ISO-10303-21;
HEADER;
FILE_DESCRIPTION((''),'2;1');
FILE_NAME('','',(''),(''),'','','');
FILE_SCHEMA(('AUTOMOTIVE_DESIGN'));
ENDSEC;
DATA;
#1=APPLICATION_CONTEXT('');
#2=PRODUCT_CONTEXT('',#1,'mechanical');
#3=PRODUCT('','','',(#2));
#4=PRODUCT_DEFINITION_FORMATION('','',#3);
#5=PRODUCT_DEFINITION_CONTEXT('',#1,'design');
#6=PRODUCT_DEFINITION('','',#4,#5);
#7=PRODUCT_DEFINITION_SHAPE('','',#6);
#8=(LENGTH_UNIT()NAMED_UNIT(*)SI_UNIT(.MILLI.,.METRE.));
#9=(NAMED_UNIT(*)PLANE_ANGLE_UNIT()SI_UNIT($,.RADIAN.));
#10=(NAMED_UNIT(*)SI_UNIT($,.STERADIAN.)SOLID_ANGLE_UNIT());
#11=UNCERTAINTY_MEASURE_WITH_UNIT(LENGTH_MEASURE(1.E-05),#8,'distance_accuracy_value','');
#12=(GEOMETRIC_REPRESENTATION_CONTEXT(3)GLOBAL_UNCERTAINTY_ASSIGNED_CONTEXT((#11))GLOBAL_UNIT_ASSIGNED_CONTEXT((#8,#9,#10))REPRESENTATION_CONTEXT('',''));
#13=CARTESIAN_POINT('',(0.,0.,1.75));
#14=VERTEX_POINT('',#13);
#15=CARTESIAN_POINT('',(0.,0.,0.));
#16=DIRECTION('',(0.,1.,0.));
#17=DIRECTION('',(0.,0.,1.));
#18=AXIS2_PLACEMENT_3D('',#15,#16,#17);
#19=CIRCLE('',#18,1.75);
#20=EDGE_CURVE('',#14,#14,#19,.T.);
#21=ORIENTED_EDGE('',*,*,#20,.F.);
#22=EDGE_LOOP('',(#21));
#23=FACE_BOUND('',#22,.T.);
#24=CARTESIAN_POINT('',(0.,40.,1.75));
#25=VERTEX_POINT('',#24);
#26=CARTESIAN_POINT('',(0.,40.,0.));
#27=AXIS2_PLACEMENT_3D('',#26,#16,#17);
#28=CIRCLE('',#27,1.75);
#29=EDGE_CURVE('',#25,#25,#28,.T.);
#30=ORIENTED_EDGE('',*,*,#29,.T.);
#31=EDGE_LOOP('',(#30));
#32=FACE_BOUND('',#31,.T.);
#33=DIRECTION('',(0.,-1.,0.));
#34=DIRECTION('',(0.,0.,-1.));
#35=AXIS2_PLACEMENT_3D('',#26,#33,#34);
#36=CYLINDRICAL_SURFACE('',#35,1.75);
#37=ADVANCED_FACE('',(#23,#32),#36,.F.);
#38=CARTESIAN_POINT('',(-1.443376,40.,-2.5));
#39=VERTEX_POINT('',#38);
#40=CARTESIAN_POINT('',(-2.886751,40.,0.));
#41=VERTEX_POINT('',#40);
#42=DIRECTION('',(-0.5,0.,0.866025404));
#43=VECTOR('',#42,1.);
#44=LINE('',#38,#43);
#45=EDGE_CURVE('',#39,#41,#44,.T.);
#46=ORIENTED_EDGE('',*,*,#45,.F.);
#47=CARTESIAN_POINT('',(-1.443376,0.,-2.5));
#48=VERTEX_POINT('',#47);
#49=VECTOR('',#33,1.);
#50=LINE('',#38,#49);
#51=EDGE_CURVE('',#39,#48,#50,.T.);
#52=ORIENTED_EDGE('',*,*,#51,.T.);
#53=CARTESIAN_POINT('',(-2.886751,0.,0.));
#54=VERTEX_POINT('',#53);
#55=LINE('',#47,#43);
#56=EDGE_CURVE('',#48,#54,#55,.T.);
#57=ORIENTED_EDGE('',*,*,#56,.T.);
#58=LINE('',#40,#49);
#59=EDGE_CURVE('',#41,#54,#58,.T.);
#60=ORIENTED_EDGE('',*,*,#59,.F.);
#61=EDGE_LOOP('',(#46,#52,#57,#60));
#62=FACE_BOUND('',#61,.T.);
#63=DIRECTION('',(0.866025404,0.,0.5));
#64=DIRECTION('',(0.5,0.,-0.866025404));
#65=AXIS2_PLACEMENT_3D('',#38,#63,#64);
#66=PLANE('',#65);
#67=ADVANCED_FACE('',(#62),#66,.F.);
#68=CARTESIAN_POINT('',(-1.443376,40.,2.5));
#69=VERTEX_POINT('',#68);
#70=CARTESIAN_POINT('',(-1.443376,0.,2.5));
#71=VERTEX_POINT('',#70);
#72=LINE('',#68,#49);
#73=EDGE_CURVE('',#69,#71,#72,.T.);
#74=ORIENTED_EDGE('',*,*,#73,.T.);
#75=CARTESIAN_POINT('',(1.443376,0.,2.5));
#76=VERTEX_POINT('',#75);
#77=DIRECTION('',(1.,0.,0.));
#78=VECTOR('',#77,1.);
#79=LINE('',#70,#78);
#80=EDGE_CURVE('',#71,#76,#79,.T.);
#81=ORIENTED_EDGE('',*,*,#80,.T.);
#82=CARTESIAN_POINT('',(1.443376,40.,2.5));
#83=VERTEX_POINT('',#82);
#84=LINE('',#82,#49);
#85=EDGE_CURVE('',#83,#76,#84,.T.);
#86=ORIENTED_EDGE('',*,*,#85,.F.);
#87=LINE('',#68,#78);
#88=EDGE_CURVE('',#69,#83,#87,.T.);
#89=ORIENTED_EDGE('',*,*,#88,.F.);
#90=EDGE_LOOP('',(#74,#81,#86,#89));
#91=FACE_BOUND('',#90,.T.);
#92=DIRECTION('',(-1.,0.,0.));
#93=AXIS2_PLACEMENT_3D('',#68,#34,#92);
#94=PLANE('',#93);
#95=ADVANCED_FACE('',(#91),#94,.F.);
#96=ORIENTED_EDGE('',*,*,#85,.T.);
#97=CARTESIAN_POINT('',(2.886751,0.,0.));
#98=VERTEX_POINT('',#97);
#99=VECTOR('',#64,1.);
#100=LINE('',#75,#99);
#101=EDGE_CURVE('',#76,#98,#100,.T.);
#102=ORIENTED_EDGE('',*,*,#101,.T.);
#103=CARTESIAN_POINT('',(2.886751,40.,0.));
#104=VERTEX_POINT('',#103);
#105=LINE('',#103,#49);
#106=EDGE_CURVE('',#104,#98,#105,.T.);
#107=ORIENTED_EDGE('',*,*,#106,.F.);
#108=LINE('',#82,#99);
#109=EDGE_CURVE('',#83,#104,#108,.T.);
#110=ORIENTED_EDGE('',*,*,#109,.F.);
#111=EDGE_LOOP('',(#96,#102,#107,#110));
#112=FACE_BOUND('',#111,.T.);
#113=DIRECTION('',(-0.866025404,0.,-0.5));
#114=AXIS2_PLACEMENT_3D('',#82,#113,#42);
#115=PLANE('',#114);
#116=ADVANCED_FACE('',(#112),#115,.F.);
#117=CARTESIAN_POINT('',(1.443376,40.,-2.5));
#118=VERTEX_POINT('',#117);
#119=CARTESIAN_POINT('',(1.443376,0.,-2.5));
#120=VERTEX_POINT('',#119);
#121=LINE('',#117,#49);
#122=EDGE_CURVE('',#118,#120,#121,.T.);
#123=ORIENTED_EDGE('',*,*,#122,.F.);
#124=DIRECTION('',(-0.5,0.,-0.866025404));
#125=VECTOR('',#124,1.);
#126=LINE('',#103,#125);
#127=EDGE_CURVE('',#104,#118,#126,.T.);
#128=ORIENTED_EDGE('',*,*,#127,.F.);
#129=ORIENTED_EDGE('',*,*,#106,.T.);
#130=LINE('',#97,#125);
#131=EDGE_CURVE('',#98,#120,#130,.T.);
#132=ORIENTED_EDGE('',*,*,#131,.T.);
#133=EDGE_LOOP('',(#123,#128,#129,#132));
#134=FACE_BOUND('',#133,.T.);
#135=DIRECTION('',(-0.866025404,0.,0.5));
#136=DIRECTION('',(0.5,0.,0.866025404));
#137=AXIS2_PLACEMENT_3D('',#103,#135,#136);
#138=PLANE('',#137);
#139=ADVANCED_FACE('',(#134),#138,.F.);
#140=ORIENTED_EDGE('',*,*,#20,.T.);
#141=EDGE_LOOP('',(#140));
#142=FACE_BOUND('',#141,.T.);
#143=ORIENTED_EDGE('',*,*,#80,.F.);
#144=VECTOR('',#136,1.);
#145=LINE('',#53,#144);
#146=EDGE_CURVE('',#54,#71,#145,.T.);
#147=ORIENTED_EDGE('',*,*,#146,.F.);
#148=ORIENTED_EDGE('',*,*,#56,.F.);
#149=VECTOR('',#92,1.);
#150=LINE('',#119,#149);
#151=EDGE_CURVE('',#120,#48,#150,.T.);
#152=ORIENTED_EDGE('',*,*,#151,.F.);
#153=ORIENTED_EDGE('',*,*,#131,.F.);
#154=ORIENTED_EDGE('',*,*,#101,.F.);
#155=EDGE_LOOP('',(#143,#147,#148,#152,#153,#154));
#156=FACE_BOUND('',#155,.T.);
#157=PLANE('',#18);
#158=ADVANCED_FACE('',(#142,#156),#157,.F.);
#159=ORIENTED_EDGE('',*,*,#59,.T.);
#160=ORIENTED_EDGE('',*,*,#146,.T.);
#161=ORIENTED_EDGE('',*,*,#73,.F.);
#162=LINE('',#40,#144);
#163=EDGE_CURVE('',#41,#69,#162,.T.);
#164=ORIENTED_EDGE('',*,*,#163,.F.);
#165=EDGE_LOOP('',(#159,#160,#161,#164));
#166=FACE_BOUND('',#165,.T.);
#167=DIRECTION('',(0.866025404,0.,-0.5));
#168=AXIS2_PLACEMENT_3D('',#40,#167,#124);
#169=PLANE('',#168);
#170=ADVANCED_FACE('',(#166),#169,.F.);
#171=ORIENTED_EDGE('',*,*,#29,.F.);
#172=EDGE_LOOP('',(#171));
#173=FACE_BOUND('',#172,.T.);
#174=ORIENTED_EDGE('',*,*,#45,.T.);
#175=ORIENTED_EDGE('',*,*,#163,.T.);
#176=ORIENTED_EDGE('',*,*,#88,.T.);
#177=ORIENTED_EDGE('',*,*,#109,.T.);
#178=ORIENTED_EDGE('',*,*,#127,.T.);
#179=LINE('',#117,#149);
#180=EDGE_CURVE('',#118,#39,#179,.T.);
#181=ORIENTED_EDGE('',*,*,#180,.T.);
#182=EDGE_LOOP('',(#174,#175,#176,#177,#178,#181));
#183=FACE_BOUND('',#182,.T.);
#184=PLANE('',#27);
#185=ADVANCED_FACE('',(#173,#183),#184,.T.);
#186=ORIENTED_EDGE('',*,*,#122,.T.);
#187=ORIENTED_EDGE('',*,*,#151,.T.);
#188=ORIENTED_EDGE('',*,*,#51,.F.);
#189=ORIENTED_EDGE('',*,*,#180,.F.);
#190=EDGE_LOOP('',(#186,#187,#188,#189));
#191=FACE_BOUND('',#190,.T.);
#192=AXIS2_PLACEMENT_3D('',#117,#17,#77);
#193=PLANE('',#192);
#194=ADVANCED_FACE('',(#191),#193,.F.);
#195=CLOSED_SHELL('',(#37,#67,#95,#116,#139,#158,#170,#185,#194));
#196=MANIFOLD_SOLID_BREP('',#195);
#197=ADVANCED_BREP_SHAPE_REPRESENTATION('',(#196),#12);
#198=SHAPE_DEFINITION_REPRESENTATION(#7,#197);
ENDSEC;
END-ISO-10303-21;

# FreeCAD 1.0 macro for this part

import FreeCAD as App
import Part
import Sketcher

V = App.Vector
Q = App.Units.Quantity

doc = App.newDocument("Part")
body = doc.addObject("PartDesign::Body", "Body")

sketch1 = doc.addObject("Sketcher::SketchObject", "Sketch")
body.addObject(sketch1)
sketch1.AttachmentSupport = (doc.XZ_Plane, [""])
sketch1.MapMode = "FlatFace"
sketch1.addGeometry([
    Part.LineSegment(V(2.9, 0, 0), V(1.4, -2.5, 0)),
    Part.LineSegment(V(1.4, -2.5, 0), V(-1.4, -2.5, 0)),
    Part.LineSegment(V(-1.4, -2.5, 0), V(-2.9, 0, 0)),
    Part.LineSegment(V(-2.9, 0, 0), V(-1.4, 2.5, 0)),
    Part.LineSegment(V(-1.4, 2.5, 0), V(1.4, 2.5, 0)),
    Part.LineSegment(V(1.4, 2.5, 0), V(2.9, 0, 0)),
    Part.Circle(V(0, 0, 0), V(0, 0, 1), 1.8),
], False)
sketch1.addConstraint([
    Sketcher.Constraint("Coincident", 0, 2, 1, 1),
    Sketcher.Constraint("Coincident", 1, 2, 2, 1),
    Sketcher.Constraint("Coincident", 2, 2, 3, 1),
    Sketcher.Constraint("Coincident", 3, 2, 4, 1),
    Sketcher.Constraint("Coincident", 4, 2, 5, 1),
    Sketcher.Constraint("Coincident", 5, 2, 0, 1),
    Sketcher.Constraint("Horizontal", 1),
    Sketcher.Constraint("Horizontal", 4),
    Sketcher.Constraint("Coincident", 6, 3, -1, 1),
    Sketcher.Constraint("Symmetric", 0, 2, 3, 2, -1, 1),
    Sketcher.Constraint("Symmetric", 2, 2, 5, 2, -1, 1),
    Sketcher.Constraint("PointOnObject", 2, 2, -1),
    Sketcher.Constraint("Parallel", 2, 5),
    Sketcher.Constraint("Vertical", 1, 2, 3, 2),
    Sketcher.Constraint("Diameter", 6, Q("3.5 mm")),
    Sketcher.Constraint("Angle", 0, Q("-120 deg")),
    Sketcher.Constraint("DistanceY", 1, 2, 3, 2, Q("5 mm")),
    Sketcher.Constraint("DistanceX", 1, 2, 1, 1, Q("2.886751 mm")),
])
pad1 = doc.addObject("PartDesign::Pad", "Pad")
body.addObject(pad1)
pad1.Profile = sketch1
pad1.Length = 40
pad1.Reversed = True

doc.recompute()
